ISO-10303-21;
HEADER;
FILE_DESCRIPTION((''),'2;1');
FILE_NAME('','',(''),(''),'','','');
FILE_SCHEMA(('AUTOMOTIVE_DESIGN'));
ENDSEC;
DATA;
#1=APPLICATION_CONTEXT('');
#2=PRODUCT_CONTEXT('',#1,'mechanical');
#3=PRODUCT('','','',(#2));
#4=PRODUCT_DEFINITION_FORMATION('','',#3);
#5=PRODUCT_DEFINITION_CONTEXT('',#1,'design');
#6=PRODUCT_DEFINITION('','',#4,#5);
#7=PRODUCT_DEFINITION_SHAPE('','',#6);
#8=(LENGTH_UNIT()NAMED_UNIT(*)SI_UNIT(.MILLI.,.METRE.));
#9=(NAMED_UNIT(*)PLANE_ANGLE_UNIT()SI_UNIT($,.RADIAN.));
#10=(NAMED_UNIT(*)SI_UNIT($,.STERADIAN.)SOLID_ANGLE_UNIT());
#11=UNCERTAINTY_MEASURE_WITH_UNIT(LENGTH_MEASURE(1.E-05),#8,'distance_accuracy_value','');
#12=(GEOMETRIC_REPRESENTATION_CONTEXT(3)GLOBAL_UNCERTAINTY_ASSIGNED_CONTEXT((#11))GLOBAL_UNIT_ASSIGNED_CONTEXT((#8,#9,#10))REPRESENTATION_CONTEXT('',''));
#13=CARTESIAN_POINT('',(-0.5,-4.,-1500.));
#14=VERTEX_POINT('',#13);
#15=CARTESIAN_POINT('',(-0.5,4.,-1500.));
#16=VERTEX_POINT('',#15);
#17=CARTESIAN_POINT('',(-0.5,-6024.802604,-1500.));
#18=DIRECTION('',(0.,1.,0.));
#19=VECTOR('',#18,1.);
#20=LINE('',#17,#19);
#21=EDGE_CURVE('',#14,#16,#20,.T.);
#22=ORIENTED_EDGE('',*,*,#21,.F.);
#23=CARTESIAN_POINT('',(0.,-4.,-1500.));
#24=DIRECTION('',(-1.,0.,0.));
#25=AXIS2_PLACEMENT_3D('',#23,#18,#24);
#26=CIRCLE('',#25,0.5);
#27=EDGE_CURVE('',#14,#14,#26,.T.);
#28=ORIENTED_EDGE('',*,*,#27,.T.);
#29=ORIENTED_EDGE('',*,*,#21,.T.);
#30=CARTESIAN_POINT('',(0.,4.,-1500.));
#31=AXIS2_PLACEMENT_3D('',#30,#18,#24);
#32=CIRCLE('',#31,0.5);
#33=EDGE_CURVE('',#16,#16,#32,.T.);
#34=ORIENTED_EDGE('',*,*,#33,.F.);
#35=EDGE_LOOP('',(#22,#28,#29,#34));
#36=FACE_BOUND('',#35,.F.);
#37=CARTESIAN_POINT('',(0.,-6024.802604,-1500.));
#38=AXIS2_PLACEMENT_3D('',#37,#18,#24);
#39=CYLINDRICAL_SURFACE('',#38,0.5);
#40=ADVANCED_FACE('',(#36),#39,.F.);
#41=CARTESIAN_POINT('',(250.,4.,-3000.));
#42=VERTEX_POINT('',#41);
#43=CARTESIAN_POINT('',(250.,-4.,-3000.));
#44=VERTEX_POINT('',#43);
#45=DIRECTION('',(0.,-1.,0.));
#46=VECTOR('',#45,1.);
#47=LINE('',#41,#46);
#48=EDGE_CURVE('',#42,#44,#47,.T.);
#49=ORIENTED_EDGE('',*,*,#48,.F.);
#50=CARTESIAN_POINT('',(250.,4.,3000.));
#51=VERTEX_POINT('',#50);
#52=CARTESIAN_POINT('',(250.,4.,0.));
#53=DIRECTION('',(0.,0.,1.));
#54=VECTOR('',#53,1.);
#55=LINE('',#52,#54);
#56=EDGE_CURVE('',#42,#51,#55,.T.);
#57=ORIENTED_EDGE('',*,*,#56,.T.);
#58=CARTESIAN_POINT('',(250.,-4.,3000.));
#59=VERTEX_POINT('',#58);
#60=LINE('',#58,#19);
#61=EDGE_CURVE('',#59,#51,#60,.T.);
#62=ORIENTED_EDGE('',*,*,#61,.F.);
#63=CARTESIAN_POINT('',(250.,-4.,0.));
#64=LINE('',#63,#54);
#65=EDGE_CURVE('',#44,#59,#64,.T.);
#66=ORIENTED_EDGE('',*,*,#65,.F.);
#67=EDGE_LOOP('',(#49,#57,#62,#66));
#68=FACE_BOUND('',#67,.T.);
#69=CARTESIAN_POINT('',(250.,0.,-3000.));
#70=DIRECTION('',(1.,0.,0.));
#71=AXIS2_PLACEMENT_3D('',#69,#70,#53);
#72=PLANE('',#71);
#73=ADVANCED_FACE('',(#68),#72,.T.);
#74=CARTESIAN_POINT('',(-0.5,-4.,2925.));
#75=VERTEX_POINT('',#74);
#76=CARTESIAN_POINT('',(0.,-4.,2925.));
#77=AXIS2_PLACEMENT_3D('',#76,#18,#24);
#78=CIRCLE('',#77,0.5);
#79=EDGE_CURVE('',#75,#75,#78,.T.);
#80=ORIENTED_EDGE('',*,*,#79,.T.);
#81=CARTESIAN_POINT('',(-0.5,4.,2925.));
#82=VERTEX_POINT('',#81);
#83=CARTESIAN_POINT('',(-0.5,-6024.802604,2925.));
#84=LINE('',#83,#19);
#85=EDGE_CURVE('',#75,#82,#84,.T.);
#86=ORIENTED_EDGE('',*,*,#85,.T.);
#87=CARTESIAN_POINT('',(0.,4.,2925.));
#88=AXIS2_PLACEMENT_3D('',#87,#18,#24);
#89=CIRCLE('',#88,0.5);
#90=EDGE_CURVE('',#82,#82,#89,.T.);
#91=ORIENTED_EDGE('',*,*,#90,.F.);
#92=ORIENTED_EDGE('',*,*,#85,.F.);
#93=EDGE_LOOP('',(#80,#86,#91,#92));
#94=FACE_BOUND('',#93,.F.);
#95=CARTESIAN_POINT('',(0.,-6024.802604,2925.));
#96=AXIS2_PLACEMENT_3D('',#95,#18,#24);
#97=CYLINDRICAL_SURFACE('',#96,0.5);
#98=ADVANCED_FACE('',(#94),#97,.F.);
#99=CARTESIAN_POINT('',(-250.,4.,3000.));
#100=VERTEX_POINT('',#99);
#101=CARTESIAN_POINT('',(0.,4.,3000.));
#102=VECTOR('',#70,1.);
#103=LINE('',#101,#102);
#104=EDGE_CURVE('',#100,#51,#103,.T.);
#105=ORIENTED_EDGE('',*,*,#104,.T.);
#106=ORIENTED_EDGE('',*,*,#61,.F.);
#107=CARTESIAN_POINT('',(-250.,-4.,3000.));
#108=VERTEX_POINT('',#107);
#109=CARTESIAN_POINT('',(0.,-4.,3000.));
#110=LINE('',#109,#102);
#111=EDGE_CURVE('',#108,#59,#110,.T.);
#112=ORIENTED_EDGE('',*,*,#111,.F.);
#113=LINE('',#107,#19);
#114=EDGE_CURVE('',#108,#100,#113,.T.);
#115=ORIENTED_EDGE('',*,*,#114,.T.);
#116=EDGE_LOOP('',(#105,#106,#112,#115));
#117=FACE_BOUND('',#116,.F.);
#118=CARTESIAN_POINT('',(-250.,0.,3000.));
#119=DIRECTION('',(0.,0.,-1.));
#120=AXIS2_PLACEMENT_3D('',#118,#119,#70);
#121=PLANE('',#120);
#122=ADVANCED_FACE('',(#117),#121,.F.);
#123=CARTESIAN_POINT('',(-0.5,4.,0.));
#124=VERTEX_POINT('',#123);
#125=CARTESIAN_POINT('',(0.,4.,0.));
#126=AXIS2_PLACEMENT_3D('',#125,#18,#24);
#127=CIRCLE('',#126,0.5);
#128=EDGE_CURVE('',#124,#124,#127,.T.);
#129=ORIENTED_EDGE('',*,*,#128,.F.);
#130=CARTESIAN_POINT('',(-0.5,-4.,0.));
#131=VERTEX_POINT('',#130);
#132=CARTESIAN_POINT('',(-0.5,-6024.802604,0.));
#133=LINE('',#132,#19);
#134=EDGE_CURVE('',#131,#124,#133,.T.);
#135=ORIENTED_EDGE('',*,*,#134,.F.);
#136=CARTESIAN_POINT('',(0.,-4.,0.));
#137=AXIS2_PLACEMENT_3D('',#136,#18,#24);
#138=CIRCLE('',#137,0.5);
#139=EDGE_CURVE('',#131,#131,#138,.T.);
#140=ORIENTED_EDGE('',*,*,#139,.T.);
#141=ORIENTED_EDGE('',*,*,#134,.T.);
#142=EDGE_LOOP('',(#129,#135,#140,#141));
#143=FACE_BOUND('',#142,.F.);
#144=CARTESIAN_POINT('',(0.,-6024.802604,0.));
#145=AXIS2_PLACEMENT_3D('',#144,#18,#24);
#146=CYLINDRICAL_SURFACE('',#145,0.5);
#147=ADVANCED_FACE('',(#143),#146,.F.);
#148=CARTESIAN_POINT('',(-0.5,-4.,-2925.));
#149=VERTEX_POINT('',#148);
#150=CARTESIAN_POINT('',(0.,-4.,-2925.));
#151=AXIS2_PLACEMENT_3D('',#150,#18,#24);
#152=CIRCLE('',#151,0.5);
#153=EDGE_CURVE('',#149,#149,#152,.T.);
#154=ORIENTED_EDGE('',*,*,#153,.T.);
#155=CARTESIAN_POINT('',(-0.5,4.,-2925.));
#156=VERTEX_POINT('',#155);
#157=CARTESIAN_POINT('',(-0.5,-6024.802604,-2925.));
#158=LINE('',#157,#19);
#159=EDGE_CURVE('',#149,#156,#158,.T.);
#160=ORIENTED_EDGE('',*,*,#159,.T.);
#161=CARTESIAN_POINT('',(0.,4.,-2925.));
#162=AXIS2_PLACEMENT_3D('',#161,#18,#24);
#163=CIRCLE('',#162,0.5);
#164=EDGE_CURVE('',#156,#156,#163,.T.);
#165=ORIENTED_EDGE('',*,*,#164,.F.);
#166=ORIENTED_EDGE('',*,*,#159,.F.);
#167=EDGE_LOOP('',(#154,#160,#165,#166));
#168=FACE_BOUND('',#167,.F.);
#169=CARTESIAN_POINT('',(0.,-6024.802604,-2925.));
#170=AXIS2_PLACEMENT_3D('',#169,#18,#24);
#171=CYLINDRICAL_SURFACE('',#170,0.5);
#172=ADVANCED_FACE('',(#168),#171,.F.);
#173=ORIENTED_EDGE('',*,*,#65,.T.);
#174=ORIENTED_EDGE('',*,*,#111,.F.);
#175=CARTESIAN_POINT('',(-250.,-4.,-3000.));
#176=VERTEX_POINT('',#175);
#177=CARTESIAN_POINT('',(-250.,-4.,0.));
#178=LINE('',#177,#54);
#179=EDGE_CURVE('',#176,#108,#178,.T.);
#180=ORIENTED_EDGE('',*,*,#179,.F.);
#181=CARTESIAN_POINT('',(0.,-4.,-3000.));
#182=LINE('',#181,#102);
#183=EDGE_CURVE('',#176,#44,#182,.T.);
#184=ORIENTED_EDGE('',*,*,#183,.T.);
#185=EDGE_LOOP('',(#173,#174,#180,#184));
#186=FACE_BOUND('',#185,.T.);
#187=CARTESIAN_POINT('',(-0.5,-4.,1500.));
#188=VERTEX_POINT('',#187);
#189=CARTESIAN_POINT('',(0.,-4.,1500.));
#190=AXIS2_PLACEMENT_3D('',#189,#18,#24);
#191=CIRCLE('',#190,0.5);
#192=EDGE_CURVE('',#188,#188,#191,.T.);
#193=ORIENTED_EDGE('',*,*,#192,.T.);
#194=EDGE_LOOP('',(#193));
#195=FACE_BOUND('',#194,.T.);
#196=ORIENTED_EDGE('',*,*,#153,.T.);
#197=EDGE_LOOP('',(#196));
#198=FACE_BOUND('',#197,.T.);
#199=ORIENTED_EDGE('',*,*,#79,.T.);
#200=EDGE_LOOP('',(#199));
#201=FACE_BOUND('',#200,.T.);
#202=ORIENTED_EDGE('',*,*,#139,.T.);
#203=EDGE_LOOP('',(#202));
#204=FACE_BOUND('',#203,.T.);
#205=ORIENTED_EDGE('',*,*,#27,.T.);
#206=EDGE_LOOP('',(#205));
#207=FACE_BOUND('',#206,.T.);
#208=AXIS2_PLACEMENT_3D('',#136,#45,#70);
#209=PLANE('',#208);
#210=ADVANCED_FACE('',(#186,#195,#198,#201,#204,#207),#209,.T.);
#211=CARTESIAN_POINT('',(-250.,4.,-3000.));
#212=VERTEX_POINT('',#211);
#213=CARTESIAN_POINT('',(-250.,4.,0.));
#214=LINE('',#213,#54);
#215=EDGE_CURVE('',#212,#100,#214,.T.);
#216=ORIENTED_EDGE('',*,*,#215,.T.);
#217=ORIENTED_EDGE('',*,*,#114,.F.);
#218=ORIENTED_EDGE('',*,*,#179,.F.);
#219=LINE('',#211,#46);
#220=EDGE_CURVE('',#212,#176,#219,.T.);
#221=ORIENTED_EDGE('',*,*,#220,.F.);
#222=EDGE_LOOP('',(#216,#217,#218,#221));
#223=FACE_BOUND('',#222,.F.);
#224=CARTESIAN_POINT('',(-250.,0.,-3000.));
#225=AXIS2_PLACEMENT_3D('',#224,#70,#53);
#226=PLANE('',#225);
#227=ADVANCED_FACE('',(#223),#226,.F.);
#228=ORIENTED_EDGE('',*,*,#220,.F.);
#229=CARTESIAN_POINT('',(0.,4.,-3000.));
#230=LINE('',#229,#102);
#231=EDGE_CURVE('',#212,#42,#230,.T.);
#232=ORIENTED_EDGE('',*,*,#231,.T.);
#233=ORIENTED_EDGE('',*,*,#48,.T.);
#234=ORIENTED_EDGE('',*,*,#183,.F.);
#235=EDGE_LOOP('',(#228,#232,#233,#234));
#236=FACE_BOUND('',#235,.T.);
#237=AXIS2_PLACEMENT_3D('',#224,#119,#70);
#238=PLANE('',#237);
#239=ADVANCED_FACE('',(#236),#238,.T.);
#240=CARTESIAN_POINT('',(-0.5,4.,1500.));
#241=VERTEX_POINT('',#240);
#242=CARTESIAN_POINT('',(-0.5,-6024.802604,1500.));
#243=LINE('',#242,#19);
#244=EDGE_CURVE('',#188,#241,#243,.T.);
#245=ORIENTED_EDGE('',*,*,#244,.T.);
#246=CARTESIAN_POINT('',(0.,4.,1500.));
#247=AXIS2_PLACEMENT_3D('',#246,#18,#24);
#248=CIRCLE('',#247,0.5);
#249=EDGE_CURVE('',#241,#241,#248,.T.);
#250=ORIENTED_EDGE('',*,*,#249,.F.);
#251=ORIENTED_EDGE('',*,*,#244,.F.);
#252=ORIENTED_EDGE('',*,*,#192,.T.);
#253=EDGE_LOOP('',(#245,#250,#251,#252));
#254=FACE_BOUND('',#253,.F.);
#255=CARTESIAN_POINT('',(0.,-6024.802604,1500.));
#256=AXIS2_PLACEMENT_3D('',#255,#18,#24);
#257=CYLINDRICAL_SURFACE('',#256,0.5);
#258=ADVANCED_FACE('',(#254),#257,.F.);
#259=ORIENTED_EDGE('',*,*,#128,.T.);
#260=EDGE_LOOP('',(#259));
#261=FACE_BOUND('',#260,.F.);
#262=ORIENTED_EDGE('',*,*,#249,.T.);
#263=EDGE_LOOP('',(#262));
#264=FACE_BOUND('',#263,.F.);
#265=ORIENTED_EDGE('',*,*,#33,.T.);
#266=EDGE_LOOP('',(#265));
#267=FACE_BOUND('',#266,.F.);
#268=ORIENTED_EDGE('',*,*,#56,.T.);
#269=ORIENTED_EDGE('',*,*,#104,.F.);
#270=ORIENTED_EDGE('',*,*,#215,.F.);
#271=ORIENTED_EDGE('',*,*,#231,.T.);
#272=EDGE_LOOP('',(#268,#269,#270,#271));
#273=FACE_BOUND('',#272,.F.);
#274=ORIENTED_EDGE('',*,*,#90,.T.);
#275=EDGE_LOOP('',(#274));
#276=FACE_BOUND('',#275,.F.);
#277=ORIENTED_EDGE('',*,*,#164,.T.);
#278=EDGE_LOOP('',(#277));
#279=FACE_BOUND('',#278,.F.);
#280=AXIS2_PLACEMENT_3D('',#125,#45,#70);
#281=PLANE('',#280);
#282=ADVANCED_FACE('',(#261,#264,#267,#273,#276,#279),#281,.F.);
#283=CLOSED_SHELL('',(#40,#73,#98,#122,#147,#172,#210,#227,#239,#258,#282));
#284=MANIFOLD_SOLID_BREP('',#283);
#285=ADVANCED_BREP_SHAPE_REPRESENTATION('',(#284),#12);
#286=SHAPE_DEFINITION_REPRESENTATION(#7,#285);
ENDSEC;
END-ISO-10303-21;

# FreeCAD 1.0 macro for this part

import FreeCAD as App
import Part
import Sketcher
from FreeCAD import Vector
Q = App.Units.Quantity


def add_polygon(sketch, points):
    """Adds a closed chain of lines whose ends are joined by coincident constraints."""
    first, n = sketch.GeometryCount, len(points)
    for a, b in zip(points, points[1:] + points[:1]):
        sketch.addGeometry(Part.LineSegment(App.Vector(*a, 0), App.Vector(*b, 0)), False)
    for i in range(n):
        sketch.addConstraint(Sketcher.Constraint("Coincident", first + i, 2, first + (i + 1) % n, 1))

doc = App.newDocument("Part")
body = doc.addObject("PartDesign::Body", "Body")

# Sketch on XZ plane
sketch1 = body.newObject("Sketcher::SketchObject", "Sketch")
sketch1.AttachmentSupport = (doc.getObject("XZ_Plane"), [""])
sketch1.MapMode = "FlatFace"
add_polygon(sketch1, [(-250, 3000), (-250, -3000), (250, -3000), (250, 3000)])  # lines 0-3
sketch1.addConstraint([
    Sketcher.Constraint("Vertical", 0),
    Sketcher.Constraint("Horizontal", 1),
    Sketcher.Constraint("Vertical", 2),
    Sketcher.Constraint("Horizontal", 3),
    Sketcher.Constraint("Symmetric", 0, 2, 2, 2, -1, 1),
    Sketcher.Constraint("DistanceX", 1, 1, 1, 2, Q("500 mm")),
    Sketcher.Constraint("DistanceY", 0, 2, 0, 1, Q("6000 mm")),
])
pad1 = body.newObject("PartDesign::Pad", "Pad")
pad1.Profile = sketch1
pad1.Length = 8
pad1.Midplane = True

# Sketch on XZ plane
sketch2 = body.newObject("Sketcher::SketchObject", "Sketch001")
sketch2.AttachmentSupport = (doc.getObject("XZ_Plane"), [""])
sketch2.MapMode = "FlatFace"
sketch2.AttachmentOffset = App.Placement(Vector(0, 0, 4), App.Rotation())
sketch2.addGeometry([
    Part.Circle(Vector(0, 2925, 0), Vector(0, 0, 1), 0.5),  # 0
    Part.Circle(Vector(0, 1500, 0), Vector(0, 0, 1), 0.5),  # 1
    Part.Circle(Vector(0, 0, 0), Vector(0, 0, 1), 0.5),  # 2
    Part.Circle(Vector(0, -1500, 0), Vector(0, 0, 1), 0.5),  # 3
    Part.Circle(Vector(0, -2925, 0), Vector(0, 0, 1), 0.5),  # 4
], False)
sketch2.addConstraint([
    Sketcher.Constraint("Coincident", 2, 3, -1, 1),
    Sketcher.Constraint("Equal", 0, 1),
    Sketcher.Constraint("Equal", 1, 2),
    Sketcher.Constraint("Equal", 2, 3),
    Sketcher.Constraint("Equal", 3, 4),
    Sketcher.Constraint("Symmetric", 1, 3, 3, 3, -1, 1),
    Sketcher.Constraint("Symmetric", 0, 3, 4, 3, -1, 1),
    Sketcher.Constraint("PointOnObject", 0, 3, -2),
    Sketcher.Constraint("PointOnObject", 1, 3, -2),
    Sketcher.Constraint("Diameter", 0, Q("1 mm")),
    Sketcher.Constraint("DistanceY", -1, 1, 0, 3, Q("2925 mm")),
    Sketcher.Constraint("DistanceY", -1, 1, 1, 3, Q("1500 mm")),
])
doc.recompute()
hole = body.newObject("PartDesign::Hole", "Hole")
hole.Profile = sketch2
hole.ThreadType = "None"
hole.Diameter = 1
hole.DepthType = "ThroughAll"

doc.recompute()
